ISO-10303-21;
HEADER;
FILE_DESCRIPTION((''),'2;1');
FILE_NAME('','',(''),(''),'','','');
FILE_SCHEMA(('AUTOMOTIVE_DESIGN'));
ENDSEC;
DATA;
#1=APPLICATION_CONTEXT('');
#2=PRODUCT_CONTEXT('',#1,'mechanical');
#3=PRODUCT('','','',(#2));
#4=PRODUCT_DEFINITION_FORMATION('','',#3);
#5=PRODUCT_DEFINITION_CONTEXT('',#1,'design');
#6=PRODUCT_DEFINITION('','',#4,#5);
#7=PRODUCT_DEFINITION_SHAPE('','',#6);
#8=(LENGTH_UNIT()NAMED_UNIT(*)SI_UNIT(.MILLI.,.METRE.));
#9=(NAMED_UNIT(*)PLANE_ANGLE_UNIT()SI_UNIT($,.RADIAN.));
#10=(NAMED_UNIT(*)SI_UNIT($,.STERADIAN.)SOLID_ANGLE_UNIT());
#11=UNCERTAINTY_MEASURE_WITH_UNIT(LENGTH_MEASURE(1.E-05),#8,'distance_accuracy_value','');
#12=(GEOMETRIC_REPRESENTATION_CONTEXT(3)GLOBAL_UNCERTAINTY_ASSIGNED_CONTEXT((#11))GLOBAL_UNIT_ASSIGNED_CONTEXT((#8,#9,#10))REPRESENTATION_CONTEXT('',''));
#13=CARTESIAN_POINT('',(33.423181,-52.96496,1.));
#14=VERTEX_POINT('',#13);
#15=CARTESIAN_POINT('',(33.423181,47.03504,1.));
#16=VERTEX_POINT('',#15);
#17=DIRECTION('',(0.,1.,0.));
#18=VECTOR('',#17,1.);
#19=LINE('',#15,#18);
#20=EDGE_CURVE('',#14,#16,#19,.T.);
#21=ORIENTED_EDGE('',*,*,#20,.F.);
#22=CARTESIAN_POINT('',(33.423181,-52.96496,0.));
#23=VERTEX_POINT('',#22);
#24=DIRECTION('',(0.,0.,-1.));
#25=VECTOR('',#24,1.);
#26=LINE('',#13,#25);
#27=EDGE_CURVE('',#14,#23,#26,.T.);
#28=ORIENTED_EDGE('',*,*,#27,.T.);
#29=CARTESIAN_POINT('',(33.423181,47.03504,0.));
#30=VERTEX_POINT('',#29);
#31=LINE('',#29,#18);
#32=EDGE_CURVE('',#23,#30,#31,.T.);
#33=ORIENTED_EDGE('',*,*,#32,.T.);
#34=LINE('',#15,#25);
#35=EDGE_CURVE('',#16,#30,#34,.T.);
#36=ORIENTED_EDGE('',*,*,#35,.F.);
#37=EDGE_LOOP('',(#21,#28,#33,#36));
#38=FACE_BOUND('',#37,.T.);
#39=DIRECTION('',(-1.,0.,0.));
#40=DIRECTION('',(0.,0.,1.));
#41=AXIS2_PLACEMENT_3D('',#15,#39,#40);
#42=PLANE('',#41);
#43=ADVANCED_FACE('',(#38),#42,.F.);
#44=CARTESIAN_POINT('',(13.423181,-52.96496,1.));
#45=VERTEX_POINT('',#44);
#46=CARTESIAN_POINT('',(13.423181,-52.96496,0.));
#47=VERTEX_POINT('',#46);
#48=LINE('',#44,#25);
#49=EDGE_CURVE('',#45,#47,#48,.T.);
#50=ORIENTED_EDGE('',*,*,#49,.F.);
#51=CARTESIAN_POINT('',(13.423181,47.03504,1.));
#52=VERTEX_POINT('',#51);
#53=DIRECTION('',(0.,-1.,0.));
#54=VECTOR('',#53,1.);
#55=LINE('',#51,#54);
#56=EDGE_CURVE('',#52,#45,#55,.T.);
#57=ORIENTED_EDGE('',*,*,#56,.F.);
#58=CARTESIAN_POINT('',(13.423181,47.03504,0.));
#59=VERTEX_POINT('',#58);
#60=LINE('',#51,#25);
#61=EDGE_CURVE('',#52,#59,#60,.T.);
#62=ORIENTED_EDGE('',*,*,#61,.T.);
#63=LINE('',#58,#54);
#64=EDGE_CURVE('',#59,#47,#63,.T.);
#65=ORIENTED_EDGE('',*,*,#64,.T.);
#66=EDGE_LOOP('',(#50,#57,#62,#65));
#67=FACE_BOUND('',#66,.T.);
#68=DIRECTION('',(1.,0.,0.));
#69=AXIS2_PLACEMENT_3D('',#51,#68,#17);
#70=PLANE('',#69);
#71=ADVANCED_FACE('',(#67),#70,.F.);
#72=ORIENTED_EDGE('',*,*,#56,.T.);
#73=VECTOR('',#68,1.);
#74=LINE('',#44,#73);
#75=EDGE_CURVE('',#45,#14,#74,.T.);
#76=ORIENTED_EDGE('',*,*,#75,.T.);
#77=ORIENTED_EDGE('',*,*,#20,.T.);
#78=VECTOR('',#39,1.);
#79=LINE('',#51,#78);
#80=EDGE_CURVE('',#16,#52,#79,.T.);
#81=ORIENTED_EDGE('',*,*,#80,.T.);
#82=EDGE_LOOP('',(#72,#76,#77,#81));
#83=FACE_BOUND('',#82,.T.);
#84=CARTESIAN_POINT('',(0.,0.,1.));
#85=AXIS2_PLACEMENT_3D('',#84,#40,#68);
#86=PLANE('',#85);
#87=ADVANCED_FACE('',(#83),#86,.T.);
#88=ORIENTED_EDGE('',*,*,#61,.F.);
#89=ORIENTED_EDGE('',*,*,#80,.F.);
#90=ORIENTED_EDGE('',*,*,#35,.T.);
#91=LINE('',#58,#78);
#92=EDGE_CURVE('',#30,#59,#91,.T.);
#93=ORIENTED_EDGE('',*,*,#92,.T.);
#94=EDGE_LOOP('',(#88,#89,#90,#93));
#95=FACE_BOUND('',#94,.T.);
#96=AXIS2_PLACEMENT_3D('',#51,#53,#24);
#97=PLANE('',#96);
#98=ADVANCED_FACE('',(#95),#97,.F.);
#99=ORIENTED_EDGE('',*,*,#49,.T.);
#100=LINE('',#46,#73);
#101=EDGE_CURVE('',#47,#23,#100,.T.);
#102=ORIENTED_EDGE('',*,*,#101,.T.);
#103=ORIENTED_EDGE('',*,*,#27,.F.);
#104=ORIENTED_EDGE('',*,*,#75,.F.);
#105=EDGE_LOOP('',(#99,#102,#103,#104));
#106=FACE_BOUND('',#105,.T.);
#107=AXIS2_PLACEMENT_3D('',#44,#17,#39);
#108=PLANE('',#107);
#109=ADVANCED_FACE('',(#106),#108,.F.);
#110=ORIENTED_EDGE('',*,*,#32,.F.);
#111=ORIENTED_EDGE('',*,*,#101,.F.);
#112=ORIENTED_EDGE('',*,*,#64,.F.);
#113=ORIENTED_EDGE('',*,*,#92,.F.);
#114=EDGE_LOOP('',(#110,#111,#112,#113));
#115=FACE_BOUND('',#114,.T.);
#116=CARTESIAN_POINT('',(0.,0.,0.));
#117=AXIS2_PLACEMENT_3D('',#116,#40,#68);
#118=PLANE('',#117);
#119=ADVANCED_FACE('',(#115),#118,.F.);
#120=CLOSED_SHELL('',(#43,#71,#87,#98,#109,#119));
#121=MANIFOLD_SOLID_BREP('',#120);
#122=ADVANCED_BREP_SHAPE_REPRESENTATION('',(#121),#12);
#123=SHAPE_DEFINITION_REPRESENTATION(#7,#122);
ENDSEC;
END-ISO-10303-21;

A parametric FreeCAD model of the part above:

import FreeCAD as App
import Part
import Sketcher
from FreeCAD import Vector


def add_polygon(sketch, points):
    """Adds a closed chain of lines whose ends are joined by coincident constraints."""
    first, n = sketch.GeometryCount, len(points)
    for a, b in zip(points, points[1:] + points[:1]):
        sketch.addGeometry(Part.LineSegment(App.Vector(*a, 0), App.Vector(*b, 0)), False)
    for i in range(n):
        sketch.addConstraint(Sketcher.Constraint("Coincident", first + i, 2, first + (i + 1) % n, 1))

doc = App.newDocument("Part")
body = doc.addObject("PartDesign::Body", "Body")

# Sketch on XY plane
sketch1 = doc.addObject("Sketcher::SketchObject", "Sketch")
body.addObject(sketch1)
sketch1.AttachmentSupport = (doc.XY_Plane, [""])
sketch1.MapMode = "FlatFace"
add_polygon(sketch1, [(13.423181, 47.03504), (13.423181, -52.96496), (33.423181, -52.96496), (33.423181, 47.03504)])  # lines 0-3
sketch1.addConstraint(Sketcher.Constraint("Vertical", 0))
sketch1.addConstraint(Sketcher.Constraint("Horizontal", 1))
sketch1.addConstraint(Sketcher.Constraint("Vertical", 2))
sketch1.addConstraint(Sketcher.Constraint("Horizontal", 3))
sketch1.addConstraint(Sketcher.Constraint("DistanceX", 1, 1, 1, 2, 20.0))
sketch1.addConstraint(Sketcher.Constraint("DistanceY", 0, 2, 0, 1, 100.0))
sketch1.addConstraint(Sketcher.Constraint("DistanceX", -1, 1, 0, 2, 13.423181))
sketch1.addConstraint(Sketcher.Constraint("DistanceY", 0, 2, -1, 1, 52.96496))
pad1 = doc.addObject("PartDesign::Pad", "Pad")
body.addObject(pad1)
pad1.Profile = sketch1
pad1.Length = 1

doc.recompute()
